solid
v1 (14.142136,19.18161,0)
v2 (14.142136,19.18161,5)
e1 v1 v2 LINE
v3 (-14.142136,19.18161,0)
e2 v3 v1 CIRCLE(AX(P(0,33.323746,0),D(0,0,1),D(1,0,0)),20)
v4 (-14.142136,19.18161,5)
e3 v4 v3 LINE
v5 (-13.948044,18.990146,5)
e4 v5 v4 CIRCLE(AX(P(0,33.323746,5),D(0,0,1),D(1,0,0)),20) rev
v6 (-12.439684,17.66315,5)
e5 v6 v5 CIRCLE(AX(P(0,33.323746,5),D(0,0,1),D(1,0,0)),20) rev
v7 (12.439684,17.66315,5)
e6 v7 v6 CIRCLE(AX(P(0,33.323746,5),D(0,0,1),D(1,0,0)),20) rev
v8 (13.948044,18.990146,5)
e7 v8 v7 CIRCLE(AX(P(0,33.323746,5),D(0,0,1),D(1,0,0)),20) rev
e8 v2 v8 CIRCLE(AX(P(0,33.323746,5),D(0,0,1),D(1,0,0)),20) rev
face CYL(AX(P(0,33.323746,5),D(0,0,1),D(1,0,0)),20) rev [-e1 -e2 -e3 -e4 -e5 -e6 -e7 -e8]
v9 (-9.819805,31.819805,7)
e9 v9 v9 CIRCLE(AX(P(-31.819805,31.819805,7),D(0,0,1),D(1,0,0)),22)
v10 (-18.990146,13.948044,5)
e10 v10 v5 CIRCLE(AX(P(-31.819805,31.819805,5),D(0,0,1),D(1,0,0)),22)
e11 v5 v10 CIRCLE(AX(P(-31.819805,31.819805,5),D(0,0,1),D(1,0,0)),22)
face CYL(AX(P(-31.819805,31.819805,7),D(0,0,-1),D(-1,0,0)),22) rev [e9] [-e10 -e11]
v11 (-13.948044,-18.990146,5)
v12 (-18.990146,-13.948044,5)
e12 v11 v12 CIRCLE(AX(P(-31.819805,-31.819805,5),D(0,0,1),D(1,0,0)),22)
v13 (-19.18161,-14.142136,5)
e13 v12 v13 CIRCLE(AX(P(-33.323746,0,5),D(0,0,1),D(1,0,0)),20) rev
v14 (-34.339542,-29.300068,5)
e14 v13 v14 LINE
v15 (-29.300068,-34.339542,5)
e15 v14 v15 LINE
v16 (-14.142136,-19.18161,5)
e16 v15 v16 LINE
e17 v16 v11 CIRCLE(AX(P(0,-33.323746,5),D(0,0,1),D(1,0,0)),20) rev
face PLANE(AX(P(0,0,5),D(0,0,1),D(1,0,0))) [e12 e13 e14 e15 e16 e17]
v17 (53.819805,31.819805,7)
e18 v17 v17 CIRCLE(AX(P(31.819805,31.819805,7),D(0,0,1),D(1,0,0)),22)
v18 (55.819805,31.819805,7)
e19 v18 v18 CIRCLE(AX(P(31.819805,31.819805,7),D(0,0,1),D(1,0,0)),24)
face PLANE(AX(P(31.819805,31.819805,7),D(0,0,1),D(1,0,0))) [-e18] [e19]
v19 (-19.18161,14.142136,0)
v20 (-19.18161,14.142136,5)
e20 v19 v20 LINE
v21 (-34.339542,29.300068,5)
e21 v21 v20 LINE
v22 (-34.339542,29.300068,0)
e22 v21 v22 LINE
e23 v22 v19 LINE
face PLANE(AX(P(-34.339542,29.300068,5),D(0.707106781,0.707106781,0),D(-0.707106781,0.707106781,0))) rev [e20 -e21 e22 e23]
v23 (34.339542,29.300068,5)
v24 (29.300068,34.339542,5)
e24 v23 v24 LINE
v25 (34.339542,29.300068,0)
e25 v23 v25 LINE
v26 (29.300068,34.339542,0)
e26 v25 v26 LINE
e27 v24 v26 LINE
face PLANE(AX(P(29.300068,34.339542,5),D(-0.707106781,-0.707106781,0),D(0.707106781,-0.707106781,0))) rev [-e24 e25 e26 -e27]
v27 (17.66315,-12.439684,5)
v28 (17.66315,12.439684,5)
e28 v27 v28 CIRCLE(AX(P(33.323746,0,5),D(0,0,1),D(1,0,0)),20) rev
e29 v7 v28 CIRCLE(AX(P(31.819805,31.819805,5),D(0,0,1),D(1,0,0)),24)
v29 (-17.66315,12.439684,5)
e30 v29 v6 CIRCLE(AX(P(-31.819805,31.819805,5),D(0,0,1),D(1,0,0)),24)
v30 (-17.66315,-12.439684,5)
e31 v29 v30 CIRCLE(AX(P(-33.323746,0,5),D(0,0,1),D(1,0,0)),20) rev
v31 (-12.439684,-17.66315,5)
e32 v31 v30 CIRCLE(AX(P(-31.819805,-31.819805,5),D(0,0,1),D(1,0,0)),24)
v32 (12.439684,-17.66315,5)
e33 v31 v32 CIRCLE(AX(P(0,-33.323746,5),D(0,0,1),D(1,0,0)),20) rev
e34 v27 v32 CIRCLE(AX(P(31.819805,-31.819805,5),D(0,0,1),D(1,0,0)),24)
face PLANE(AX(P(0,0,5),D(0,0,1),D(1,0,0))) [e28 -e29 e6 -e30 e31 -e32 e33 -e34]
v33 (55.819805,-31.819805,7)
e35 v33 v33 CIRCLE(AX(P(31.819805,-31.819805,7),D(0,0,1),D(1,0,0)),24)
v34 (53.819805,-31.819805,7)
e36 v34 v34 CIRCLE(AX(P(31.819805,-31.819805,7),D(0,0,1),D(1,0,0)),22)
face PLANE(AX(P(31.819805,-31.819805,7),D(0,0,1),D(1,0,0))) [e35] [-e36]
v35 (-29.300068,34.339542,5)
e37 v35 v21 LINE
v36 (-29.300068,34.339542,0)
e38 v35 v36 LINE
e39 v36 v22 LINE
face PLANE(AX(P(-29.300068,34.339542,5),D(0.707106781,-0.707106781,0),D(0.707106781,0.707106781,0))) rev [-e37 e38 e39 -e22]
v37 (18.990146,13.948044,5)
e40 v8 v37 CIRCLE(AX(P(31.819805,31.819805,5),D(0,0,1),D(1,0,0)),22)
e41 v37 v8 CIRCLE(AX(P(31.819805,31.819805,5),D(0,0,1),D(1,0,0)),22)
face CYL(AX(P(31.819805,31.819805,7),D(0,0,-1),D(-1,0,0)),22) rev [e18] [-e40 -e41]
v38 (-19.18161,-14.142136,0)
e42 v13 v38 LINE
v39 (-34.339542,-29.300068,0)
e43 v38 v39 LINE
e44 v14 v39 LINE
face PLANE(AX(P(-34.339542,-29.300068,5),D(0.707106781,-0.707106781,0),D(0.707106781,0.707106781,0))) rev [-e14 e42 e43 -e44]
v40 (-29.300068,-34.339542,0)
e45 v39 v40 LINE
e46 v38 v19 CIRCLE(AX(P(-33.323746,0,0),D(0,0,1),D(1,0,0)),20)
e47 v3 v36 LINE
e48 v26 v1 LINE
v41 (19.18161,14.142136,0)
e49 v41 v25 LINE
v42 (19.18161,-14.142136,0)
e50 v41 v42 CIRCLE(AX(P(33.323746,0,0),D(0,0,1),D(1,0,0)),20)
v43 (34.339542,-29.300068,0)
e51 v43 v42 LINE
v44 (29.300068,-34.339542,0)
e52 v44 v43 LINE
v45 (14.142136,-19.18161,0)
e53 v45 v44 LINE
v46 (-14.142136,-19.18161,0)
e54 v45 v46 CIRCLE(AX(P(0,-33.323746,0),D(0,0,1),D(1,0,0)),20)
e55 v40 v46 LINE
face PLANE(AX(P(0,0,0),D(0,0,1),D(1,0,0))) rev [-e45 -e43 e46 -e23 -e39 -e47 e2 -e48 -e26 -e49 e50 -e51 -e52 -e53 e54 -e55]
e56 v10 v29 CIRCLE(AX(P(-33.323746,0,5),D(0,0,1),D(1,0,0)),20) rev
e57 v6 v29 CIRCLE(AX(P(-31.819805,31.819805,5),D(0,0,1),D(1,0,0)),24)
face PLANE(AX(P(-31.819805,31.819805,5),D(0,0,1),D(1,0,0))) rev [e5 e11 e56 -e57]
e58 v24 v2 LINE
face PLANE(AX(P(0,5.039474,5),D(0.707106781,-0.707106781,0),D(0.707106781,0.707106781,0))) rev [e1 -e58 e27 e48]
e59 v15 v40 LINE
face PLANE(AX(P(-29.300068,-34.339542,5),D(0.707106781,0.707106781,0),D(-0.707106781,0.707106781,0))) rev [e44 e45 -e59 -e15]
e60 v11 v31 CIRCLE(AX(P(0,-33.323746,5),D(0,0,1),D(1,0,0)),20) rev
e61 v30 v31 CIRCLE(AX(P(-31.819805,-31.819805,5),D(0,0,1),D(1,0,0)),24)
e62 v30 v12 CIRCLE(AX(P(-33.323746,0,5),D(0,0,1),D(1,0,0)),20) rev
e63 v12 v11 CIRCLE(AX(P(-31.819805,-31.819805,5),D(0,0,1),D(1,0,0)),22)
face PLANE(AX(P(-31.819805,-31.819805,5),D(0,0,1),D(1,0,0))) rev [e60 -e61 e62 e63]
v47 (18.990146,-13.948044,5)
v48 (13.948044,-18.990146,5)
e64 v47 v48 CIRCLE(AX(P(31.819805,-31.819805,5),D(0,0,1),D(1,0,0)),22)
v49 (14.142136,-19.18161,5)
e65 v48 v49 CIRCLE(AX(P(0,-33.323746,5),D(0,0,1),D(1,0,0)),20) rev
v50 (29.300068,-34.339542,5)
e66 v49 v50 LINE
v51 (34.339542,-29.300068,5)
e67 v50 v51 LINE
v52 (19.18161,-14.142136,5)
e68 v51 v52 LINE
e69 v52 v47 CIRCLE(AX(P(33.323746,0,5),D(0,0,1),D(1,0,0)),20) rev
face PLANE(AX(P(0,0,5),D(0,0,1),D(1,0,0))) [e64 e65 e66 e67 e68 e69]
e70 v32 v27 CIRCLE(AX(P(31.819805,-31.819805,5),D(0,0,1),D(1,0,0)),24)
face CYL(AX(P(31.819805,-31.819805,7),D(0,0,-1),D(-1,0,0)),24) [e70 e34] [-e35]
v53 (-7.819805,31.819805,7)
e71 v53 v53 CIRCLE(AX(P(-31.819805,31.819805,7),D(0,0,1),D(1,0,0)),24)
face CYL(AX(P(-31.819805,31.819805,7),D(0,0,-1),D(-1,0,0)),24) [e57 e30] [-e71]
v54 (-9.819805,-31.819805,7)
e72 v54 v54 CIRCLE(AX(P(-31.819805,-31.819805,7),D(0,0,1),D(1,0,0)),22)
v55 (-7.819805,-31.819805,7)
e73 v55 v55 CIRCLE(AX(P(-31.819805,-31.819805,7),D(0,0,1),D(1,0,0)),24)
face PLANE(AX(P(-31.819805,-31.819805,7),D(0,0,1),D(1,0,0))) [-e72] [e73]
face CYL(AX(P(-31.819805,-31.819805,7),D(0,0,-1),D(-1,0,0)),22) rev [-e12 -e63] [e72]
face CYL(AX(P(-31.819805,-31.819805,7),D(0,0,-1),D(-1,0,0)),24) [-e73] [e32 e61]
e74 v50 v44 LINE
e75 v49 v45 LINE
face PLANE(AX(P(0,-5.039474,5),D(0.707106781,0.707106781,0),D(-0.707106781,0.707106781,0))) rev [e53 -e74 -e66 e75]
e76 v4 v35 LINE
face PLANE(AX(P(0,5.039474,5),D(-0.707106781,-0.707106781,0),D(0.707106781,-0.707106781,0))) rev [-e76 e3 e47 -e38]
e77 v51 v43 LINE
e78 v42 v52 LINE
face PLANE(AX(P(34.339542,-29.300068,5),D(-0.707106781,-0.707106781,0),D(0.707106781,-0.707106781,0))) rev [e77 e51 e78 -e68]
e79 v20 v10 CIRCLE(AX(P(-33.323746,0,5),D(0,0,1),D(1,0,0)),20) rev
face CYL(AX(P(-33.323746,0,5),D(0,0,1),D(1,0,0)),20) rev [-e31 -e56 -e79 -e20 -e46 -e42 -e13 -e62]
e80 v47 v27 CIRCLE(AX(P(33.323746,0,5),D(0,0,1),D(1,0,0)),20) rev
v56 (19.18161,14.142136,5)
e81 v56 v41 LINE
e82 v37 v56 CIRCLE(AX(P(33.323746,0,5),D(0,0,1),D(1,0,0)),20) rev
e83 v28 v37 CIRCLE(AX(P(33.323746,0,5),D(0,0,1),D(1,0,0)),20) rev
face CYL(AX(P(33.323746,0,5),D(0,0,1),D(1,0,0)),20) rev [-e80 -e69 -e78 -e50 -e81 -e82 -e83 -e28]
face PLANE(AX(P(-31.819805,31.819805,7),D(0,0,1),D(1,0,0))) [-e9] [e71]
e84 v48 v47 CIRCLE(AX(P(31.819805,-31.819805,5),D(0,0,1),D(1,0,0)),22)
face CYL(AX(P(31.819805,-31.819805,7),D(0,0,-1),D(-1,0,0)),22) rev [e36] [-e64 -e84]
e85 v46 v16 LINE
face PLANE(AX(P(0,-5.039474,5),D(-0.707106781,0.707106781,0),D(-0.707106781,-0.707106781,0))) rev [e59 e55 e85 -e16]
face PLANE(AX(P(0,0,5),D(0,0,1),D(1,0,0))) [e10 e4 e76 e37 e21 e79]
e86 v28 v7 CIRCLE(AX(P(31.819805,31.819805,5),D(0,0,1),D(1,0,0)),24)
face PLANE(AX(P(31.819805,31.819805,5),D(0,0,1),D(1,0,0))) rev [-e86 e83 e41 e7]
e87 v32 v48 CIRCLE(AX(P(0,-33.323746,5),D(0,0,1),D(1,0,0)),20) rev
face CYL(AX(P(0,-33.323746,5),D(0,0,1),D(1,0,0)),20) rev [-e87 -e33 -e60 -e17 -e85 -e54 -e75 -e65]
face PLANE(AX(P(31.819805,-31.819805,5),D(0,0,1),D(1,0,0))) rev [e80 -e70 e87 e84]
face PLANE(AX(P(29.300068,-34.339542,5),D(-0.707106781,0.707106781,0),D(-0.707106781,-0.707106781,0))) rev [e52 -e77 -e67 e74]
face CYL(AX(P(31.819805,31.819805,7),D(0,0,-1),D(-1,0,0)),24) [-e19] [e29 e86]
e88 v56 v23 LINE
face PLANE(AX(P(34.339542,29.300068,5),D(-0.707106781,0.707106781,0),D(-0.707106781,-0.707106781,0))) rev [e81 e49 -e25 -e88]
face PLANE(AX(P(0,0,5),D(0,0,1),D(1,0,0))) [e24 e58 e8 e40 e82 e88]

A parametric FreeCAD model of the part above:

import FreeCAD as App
import Part
import Sketcher
Q = App.Units.Quantity


def edges_at(feature, points):
    """Names of the edges that pass closest to the given points."""
    edges = feature.Shape.Edges
    near = lambda p: min(range(len(edges)), key=lambda i: edges[i].distToShape(Part.Vertex(*p))[0])
    return sorted({f"Edge{near(p) + 1}" for p in points})

doc = App.newDocument("Part")
body = doc.addObject("PartDesign::Body", "Body")

# Sketch on XY plane
sketch1 = doc.addObject("Sketcher::SketchObject", "Sketch")
body.addObject(sketch1)
sketch1.AttachmentSupport = (doc.XY_Plane, [""])
sketch1.MapMode = "FlatFace"
sketch1.addGeometry(Part.LineSegment(App.Vector(29, 34, 0), App.Vector(0, 5, 0)), False)
sketch1.addGeometry(Part.LineSegment(App.Vector(0, 5, 0), App.Vector(-29, 34, 0)), False)
sketch1.addGeometry(Part.LineSegment(App.Vector(-29, 34, 0), App.Vector(-34, 29, 0)), False)
sketch1.addGeometry(Part.LineSegment(App.Vector(-34, 29, 0), App.Vector(-5, 0, 0)), False)
sketch1.addGeometry(Part.LineSegment(App.Vector(-5, 0, 0), App.Vector(-34, -29, 0)), False)
sketch1.addGeometry(Part.LineSegment(App.Vector(-34, -29, 0), App.Vector(-29, -34, 0)), False)
sketch1.addGeometry(Part.LineSegment(App.Vector(-29, -34, 0), App.Vector(0, -5, 0)), False)
sketch1.addGeometry(Part.LineSegment(App.Vector(0, -5, 0), App.Vector(29, -34, 0)), False)
sketch1.addGeometry(Part.LineSegment(App.Vector(29, -34, 0), App.Vector(34, -29, 0)), False)
sketch1.addGeometry(Part.LineSegment(App.Vector(34, -29, 0), App.Vector(5, 0, 0)), False)
sketch1.addGeometry(Part.LineSegment(App.Vector(5, 0, 0), App.Vector(34, 29, 0)), False)
sketch1.addGeometry(Part.LineSegment(App.Vector(34, 29, 0), App.Vector(29, 34, 0)), False)
sketch1.addConstraint(Sketcher.Constraint("Coincident", 0, 2, 1, 1))
sketch1.addConstraint(Sketcher.Constraint("Coincident", 1, 2, 2, 1))
sketch1.addConstraint(Sketcher.Constraint("Coincident", 2, 2, 3, 1))
sketch1.addConstraint(Sketcher.Constraint("Coincident", 3, 2, 4, 1))
sketch1.addConstraint(Sketcher.Constraint("Coincident", 4, 2, 5, 1))
sketch1.addConstraint(Sketcher.Constraint("Coincident", 5, 2, 6, 1))
sketch1.addConstraint(Sketcher.Constraint("Coincident", 6, 2, 7, 1))
sketch1.addConstraint(Sketcher.Constraint("Coincident", 7, 2, 8, 1))
sketch1.addConstraint(Sketcher.Constraint("Coincident", 8, 2, 9, 1))
sketch1.addConstraint(Sketcher.Constraint("Coincident", 9, 2, 10, 1))
sketch1.addConstraint(Sketcher.Constraint("Coincident", 10, 2, 11, 1))
sketch1.addConstraint(Sketcher.Constraint("Coincident", 11, 2, 0, 1))
sketch1.addConstraint(Sketcher.Constraint("Symmetric", 0, 2, 6, 2, -1, 1))
sketch1.addConstraint(Sketcher.Constraint("Symmetric", 1, 2, 7, 2, -1, 1))
sketch1.addConstraint(Sketcher.Constraint("Symmetric", 2, 2, 8, 2, -1, 1))
sketch1.addConstraint(Sketcher.Constraint("Symmetric", 3, 2, 9, 2, -1, 1))
sketch1.addConstraint(Sketcher.Constraint("Symmetric", 4, 2, 10, 2, -1, 1))
sketch1.addConstraint(Sketcher.Constraint("Symmetric", 5, 2, 11, 2, -1, 1))
sketch1.addConstraint(Sketcher.Constraint("Symmetric", 5, 2, 7, 2, -2))
sketch1.addConstraint(Sketcher.Constraint("Symmetric", 4, 2, 8, 2, -2))
sketch1.addConstraint(Sketcher.Constraint("PointOnObject", 0, 2, -2))
sketch1.addConstraint(Sketcher.Constraint("PointOnObject", 3, 2, -1))
sketch1.addConstraint(Sketcher.Constraint("Perpendicular", 0, 1))
sketch1.addConstraint(Sketcher.Constraint("Perpendicular", 1, 2))
sketch1.addConstraint(Sketcher.Constraint("Perpendicular", 2, 3))
sketch1.addConstraint(Sketcher.Constraint("Equal", 1, 3))
sketch1.addConstraint(Sketcher.Constraint("DistanceX", 1, 2, -1, 1, Q("29.300068 mm")))
sketch1.addConstraint(Sketcher.Constraint("DistanceY", 4, 2, 1, 2, Q("63.63961 mm")))
pad1 = doc.addObject("PartDesign::Pad", "Pad")
body.addObject(pad1)
pad1.Profile = sketch1
pad1.Length = 5
doc.recompute()

fillet = doc.addObject("PartDesign::Fillet", "Fillet")
body.addObject(fillet)
fillet.Base = (pad1, edges_at(pad1, [
    (0, -5.039, 2.5),
    (-5.039, 0, 2.5),
    (0, 5.039, 2.5),
    (5.039, 0, 2.5),
]))
fillet.Radius = 20

# Sketch on XY plane
sketch2 = doc.addObject("Sketcher::SketchObject", "Sketch001")
body.addObject(sketch2)
sketch2.AttachmentSupport = (doc.XY_Plane, [""])
sketch2.MapMode = "FlatFace"
sketch2.AttachmentOffset = App.Placement(App.Vector(0, 0, 5), App.Rotation())
sketch2.addGeometry(Part.Circle(App.Vector(-32, 32, 0), App.Vector(0, 0, 1), 24), False)
sketch2.addGeometry(Part.Circle(App.Vector(-32, 32, 0), App.Vector(0, 0, 1), 22), False)
sketch2.addGeometry(Part.Circle(App.Vector(32, 32, 0), App.Vector(0, 0, 1), 24), False)
sketch2.addGeometry(Part.Circle(App.Vector(32, 32, 0), App.Vector(0, 0, 1), 22), False)
sketch2.addGeometry(Part.Circle(App.Vector(32, -32, 0), App.Vector(0, 0, 1), 24), False)
sketch2.addGeometry(Part.Circle(App.Vector(32, -32, 0), App.Vector(0, 0, 1), 22), False)
sketch2.addGeometry(Part.Circle(App.Vector(-32, -32, 0), App.Vector(0, 0, 1), 24), False)
sketch2.addGeometry(Part.Circle(App.Vector(-32, -32, 0), App.Vector(0, 0, 1), 22), False)
sketch2.addConstraint(Sketcher.Constraint("Coincident", 1, 3, 0, 3))
sketch2.addConstraint(Sketcher.Constraint("Coincident", 3, 3, 2, 3))
sketch2.addConstraint(Sketcher.Constraint("Coincident", 5, 3, 4, 3))
sketch2.addConstraint(Sketcher.Constraint("Coincident", 7, 3, 6, 3))
sketch2.addConstraint(Sketcher.Constraint("Equal", 0, 2))
sketch2.addConstraint(Sketcher.Constraint("Equal", 1, 3))
sketch2.addConstraint(Sketcher.Constraint("Equal", 2, 4))
sketch2.addConstraint(Sketcher.Constraint("Equal", 3, 5))
sketch2.addConstraint(Sketcher.Constraint("Equal", 4, 6))
sketch2.addConstraint(Sketcher.Constraint("Equal", 5, 7))
sketch2.addConstraint(Sketcher.Constraint("Symmetric", 0, 3, 4, 3, -1, 1))
sketch2.addConstraint(Sketcher.Constraint("Symmetric", 2, 3, 6, 3, -1, 1))
sketch2.addConstraint(Sketcher.Constraint("Symmetric", 0, 3, 2, 3, -2))
sketch2.addConstraint(Sketcher.Constraint("Diameter", 0, Q("48 mm")))
sketch2.addConstraint(Sketcher.Constraint("Diameter", 1, Q("44 mm")))
sketch2.addConstraint(Sketcher.Constraint("DistanceX", 0, 3, 2, 3, Q("63.63961 mm")))
sketch2.addConstraint(Sketcher.Constraint("DistanceY", 4, 3, 2, 3, Q("63.63961 mm")))
pad2 = doc.addObject("PartDesign::Pad", "Pad001")
body.addObject(pad2)
pad2.Profile = sketch2
pad2.Length = 2

doc.recompute()
